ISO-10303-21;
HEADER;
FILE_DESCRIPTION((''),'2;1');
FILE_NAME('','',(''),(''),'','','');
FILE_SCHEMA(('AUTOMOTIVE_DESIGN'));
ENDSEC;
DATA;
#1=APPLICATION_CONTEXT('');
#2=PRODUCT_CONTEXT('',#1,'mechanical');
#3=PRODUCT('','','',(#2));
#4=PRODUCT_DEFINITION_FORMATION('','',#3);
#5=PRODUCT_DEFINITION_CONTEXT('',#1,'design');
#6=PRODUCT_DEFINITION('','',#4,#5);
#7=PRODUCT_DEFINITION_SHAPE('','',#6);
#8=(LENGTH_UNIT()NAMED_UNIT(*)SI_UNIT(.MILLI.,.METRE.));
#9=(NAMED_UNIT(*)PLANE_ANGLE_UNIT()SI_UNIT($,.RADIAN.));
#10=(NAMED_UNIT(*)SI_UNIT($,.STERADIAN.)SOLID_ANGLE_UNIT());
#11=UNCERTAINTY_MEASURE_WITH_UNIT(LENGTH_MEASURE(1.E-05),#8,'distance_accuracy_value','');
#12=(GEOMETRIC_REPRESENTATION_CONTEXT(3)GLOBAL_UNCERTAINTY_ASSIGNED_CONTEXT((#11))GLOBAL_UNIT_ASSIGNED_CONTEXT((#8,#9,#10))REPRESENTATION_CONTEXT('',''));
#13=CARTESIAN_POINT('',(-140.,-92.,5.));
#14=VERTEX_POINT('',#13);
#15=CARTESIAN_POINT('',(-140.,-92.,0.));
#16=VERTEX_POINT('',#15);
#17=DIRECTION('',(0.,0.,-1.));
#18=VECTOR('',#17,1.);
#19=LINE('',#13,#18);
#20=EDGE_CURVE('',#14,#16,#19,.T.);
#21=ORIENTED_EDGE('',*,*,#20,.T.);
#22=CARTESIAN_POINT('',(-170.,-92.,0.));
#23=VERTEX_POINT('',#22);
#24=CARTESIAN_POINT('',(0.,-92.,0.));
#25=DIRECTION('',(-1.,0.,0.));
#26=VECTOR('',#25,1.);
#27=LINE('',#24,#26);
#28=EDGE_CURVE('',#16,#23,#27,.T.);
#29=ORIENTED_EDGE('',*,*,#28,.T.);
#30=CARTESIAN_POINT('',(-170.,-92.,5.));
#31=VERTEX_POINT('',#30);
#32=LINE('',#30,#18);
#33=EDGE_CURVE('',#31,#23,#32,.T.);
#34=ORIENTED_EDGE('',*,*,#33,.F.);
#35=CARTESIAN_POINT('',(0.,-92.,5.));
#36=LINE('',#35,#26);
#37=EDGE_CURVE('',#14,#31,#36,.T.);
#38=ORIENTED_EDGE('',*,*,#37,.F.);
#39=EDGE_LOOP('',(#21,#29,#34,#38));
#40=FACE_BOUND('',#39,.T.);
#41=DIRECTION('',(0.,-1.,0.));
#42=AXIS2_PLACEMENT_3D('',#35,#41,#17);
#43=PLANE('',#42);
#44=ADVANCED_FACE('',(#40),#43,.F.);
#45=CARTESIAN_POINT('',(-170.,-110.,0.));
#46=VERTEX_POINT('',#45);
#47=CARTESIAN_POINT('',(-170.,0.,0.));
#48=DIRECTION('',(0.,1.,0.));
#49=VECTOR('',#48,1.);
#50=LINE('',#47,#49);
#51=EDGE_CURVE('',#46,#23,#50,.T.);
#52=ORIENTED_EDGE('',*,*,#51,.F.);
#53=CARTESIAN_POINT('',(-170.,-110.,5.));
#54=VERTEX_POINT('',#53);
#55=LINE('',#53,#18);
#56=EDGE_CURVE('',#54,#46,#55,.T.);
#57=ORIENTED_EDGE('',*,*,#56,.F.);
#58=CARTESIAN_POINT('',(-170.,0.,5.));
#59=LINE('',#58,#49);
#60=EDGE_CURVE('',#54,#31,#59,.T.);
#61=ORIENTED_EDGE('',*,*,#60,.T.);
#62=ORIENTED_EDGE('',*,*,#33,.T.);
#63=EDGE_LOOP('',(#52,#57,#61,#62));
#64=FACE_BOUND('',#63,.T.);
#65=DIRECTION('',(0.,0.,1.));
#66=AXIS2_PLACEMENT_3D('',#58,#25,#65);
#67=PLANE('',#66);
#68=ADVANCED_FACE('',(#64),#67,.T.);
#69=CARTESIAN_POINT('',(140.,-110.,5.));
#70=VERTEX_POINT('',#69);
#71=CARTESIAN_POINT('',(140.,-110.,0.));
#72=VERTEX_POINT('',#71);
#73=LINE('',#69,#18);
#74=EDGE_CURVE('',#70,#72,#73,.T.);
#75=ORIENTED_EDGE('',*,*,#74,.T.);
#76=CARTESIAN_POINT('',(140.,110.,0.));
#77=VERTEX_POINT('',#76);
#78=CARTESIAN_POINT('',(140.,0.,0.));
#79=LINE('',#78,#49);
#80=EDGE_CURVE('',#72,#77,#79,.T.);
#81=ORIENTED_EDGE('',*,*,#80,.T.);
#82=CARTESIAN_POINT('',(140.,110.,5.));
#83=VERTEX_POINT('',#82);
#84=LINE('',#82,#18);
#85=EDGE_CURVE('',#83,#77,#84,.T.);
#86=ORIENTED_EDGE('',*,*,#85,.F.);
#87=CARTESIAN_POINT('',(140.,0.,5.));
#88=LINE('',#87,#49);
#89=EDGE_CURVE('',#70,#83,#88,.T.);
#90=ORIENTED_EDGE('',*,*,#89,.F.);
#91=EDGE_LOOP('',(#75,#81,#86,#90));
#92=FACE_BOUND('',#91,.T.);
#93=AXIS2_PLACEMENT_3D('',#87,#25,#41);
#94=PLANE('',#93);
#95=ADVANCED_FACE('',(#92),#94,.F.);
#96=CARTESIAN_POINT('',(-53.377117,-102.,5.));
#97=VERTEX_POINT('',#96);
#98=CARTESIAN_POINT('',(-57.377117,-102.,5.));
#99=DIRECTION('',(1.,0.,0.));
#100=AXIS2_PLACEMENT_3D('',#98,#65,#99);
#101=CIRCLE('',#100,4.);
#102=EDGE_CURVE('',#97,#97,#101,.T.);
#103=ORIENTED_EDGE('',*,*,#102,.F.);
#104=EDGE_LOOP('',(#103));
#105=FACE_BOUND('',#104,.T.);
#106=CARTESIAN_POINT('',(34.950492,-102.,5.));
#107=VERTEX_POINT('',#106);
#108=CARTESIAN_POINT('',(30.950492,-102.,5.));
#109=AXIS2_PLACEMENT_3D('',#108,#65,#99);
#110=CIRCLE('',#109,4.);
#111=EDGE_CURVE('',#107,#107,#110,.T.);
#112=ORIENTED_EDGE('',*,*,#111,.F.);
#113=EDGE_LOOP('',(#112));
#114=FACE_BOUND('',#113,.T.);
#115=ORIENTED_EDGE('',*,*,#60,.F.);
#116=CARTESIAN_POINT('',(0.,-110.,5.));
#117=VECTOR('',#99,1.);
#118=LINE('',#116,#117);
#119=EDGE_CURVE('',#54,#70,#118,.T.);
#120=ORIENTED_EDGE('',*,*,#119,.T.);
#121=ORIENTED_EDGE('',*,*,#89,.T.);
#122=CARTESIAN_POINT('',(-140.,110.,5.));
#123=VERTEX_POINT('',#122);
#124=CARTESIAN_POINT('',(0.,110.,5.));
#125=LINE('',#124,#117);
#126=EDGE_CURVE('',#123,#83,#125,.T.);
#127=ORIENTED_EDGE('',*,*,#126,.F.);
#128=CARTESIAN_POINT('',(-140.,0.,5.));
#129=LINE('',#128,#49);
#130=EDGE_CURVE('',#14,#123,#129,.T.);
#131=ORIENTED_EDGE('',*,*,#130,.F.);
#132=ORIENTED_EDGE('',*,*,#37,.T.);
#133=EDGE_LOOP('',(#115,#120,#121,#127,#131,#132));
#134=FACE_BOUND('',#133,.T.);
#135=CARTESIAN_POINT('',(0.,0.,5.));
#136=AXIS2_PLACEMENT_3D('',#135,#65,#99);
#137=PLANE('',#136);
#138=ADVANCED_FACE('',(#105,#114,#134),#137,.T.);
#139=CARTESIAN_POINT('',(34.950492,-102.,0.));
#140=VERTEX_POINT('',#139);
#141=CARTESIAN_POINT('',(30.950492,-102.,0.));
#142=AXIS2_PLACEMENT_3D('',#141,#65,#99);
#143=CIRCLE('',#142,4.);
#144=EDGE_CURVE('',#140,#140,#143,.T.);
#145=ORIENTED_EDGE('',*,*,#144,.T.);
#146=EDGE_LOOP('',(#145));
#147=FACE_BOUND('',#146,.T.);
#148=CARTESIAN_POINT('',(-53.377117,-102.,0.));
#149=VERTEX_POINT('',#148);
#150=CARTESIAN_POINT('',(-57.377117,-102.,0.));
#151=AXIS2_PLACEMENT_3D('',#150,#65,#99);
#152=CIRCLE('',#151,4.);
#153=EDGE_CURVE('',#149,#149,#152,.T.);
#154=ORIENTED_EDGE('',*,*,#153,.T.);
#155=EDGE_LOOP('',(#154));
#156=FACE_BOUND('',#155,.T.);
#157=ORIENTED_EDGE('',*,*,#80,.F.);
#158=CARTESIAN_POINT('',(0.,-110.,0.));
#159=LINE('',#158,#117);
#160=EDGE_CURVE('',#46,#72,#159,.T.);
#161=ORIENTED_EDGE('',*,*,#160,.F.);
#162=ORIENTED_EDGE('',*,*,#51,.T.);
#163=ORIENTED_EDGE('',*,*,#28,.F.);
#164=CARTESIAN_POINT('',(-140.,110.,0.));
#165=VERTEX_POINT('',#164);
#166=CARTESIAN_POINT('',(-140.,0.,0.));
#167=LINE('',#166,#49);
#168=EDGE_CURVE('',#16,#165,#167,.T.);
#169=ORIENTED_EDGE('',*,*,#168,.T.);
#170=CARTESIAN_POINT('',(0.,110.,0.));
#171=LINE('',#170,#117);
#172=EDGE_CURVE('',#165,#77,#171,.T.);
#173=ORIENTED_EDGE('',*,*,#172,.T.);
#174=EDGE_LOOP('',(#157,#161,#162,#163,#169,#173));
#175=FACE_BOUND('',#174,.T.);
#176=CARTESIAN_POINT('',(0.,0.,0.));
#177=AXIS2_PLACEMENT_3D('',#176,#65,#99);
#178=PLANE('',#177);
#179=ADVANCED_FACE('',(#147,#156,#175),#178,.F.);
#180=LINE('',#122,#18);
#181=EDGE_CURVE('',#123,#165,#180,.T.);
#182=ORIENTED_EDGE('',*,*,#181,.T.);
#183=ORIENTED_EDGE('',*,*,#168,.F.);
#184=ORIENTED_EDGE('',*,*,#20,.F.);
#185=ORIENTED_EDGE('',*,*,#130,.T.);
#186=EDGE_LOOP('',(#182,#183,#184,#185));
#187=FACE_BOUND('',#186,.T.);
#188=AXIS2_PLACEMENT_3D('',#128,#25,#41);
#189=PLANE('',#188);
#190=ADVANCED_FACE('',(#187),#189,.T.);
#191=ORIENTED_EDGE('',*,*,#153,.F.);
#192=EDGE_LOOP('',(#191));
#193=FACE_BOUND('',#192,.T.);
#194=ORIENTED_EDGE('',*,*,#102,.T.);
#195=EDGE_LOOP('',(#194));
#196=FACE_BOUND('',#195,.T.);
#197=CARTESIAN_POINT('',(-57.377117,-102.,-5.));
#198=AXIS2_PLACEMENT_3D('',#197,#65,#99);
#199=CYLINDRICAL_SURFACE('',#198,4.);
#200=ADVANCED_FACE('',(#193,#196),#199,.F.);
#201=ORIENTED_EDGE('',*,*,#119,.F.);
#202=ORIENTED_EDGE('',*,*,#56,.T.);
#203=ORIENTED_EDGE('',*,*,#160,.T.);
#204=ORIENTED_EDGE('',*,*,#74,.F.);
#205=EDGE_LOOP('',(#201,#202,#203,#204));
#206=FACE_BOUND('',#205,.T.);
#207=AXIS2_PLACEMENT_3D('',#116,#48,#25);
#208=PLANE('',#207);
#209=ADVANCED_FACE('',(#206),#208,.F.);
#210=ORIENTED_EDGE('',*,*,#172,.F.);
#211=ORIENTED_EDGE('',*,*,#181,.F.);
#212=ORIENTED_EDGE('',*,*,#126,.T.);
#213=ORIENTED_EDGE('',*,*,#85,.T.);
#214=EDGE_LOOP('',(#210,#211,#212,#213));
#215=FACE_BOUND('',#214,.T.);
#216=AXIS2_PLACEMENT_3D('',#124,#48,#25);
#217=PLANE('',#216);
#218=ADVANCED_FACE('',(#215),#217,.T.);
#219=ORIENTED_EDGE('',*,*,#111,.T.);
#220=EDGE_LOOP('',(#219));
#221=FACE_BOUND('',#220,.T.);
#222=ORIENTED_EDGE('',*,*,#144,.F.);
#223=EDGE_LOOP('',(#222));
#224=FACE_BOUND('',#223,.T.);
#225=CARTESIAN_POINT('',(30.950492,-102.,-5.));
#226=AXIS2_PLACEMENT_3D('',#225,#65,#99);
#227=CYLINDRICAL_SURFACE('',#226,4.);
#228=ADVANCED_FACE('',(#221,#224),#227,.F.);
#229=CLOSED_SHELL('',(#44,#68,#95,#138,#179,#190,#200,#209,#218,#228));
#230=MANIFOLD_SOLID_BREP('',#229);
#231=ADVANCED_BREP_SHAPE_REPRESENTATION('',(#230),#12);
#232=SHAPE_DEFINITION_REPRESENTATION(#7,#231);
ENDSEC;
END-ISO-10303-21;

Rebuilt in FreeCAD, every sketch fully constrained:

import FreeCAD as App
import Part
import Sketcher

V = App.Vector
Q = App.Units.Quantity


def add_polygon(sketch, points):
    """Adds a closed chain of lines whose ends are joined by coincident constraints."""
    first, n = sketch.GeometryCount, len(points)
    for a, b in zip(points, points[1:] + points[:1]):
        sketch.addGeometry(Part.LineSegment(App.Vector(*a, 0), App.Vector(*b, 0)), False)
    for i in range(n):
        sketch.addConstraint(Sketcher.Constraint("Coincident", first + i, 2, first + (i + 1) % n, 1))

doc = App.newDocument("Part")
params = doc.addObject("Spreadsheet::Sheet", "Params")
for row, (alias, value) in enumerate([
    ("sketch1_width", "30 mm"),
    ("sketch1_width2", "310 mm"),
    ("sketch1_height", "202 mm"),
    ("sketch1_height2", "18 mm"),
    ("pad1_length", "5 mm"),
    ("sketch2_diameter", "8 mm"),
    ("pocket1_length", "10 mm"),
], start=1):
    params.set(f"A{row}", alias)
    params.set(f"B{row}", "=" + value)
    params.setAlias(f"B{row}", alias)

body = doc.addObject("PartDesign::Body", "Body")

# Sketch on XY plane
sketch1 = body.newObject("Sketcher::SketchObject", "Sketch")
sketch1.AttachmentSupport = (doc.getObject("XY_Plane"), [""])
sketch1.MapMode = "FlatFace"
add_polygon(sketch1, [(-140, 110), (-140, -92), (-170, -92), (-170, -110), (140, -110), (140, 110)])  # lines 0-5
sketch1.addConstraint([
    Sketcher.Constraint("Vertical", 0),
    Sketcher.Constraint("Horizontal", 1),
    Sketcher.Constraint("Vertical", 2),
    Sketcher.Constraint("Horizontal", 3),
    Sketcher.Constraint("Vertical", 4),
    Sketcher.Constraint("Horizontal", 5),
    Sketcher.Constraint("Symmetric", 3, 2, 5, 2, -1, 1),
    Sketcher.Constraint("DistanceX", 1, 2, 1, 1, Q("30 mm")),
    Sketcher.Constraint("DistanceX", 3, 1, 3, 2, Q("310 mm")),
    Sketcher.Constraint("DistanceY", 0, 2, 0, 1, Q("202 mm")),
    Sketcher.Constraint("DistanceY", 2, 2, 2, 1, Q("18 mm")),
])
sketch1.setExpression("Constraints[13]", "Params.sketch1_width")
sketch1.setExpression("Constraints[14]", "Params.sketch1_width2")
sketch1.setExpression("Constraints[15]", "Params.sketch1_height")
sketch1.setExpression("Constraints[16]", "Params.sketch1_height2")
pad1 = body.newObject("PartDesign::Pad", "Pad")
pad1.Profile = sketch1
pad1.setExpression("Length", "Params.pad1_length")

# Sketch on XY plane
sketch2 = body.newObject("Sketcher::SketchObject", "Sketch001")
sketch2.AttachmentSupport = (doc.getObject("XY_Plane"), [""])
sketch2.MapMode = "FlatFace"
sketch2.AttachmentOffset = App.Placement(V(0, 0, 5), App.Rotation())
sketch2.addGeometry([
    Part.Circle(V(-57.377117, -102, 0), V(0, 0, 1), 4),
    Part.Circle(V(30.950492, -102, 0), V(0, 0, 1), 4),
], False)
sketch2.addConstraint([
    Sketcher.Constraint("Equal", 0, 1),
    Sketcher.Constraint("Horizontal", 0, 3, 1, 3),
    Sketcher.Constraint("Diameter", 0, Q("8 mm")),
    Sketcher.Constraint("DistanceY", 0, 3, -1, 1, Q("102 mm")),
    Sketcher.Constraint("DistanceX", -1, 1, 1, 3, Q("30.950492 mm")),
    Sketcher.Constraint("DistanceX", 0, 3, 1, 3, Q("88.327609 mm")),
])
sketch2.setExpression("Constraints[2]", "Params.sketch2_diameter")
pocket1 = body.newObject("PartDesign::Pocket", "Pocket")
pocket1.Profile = sketch2
pocket1.setExpression("Length", "Params.pocket1_length")

doc.recompute()
